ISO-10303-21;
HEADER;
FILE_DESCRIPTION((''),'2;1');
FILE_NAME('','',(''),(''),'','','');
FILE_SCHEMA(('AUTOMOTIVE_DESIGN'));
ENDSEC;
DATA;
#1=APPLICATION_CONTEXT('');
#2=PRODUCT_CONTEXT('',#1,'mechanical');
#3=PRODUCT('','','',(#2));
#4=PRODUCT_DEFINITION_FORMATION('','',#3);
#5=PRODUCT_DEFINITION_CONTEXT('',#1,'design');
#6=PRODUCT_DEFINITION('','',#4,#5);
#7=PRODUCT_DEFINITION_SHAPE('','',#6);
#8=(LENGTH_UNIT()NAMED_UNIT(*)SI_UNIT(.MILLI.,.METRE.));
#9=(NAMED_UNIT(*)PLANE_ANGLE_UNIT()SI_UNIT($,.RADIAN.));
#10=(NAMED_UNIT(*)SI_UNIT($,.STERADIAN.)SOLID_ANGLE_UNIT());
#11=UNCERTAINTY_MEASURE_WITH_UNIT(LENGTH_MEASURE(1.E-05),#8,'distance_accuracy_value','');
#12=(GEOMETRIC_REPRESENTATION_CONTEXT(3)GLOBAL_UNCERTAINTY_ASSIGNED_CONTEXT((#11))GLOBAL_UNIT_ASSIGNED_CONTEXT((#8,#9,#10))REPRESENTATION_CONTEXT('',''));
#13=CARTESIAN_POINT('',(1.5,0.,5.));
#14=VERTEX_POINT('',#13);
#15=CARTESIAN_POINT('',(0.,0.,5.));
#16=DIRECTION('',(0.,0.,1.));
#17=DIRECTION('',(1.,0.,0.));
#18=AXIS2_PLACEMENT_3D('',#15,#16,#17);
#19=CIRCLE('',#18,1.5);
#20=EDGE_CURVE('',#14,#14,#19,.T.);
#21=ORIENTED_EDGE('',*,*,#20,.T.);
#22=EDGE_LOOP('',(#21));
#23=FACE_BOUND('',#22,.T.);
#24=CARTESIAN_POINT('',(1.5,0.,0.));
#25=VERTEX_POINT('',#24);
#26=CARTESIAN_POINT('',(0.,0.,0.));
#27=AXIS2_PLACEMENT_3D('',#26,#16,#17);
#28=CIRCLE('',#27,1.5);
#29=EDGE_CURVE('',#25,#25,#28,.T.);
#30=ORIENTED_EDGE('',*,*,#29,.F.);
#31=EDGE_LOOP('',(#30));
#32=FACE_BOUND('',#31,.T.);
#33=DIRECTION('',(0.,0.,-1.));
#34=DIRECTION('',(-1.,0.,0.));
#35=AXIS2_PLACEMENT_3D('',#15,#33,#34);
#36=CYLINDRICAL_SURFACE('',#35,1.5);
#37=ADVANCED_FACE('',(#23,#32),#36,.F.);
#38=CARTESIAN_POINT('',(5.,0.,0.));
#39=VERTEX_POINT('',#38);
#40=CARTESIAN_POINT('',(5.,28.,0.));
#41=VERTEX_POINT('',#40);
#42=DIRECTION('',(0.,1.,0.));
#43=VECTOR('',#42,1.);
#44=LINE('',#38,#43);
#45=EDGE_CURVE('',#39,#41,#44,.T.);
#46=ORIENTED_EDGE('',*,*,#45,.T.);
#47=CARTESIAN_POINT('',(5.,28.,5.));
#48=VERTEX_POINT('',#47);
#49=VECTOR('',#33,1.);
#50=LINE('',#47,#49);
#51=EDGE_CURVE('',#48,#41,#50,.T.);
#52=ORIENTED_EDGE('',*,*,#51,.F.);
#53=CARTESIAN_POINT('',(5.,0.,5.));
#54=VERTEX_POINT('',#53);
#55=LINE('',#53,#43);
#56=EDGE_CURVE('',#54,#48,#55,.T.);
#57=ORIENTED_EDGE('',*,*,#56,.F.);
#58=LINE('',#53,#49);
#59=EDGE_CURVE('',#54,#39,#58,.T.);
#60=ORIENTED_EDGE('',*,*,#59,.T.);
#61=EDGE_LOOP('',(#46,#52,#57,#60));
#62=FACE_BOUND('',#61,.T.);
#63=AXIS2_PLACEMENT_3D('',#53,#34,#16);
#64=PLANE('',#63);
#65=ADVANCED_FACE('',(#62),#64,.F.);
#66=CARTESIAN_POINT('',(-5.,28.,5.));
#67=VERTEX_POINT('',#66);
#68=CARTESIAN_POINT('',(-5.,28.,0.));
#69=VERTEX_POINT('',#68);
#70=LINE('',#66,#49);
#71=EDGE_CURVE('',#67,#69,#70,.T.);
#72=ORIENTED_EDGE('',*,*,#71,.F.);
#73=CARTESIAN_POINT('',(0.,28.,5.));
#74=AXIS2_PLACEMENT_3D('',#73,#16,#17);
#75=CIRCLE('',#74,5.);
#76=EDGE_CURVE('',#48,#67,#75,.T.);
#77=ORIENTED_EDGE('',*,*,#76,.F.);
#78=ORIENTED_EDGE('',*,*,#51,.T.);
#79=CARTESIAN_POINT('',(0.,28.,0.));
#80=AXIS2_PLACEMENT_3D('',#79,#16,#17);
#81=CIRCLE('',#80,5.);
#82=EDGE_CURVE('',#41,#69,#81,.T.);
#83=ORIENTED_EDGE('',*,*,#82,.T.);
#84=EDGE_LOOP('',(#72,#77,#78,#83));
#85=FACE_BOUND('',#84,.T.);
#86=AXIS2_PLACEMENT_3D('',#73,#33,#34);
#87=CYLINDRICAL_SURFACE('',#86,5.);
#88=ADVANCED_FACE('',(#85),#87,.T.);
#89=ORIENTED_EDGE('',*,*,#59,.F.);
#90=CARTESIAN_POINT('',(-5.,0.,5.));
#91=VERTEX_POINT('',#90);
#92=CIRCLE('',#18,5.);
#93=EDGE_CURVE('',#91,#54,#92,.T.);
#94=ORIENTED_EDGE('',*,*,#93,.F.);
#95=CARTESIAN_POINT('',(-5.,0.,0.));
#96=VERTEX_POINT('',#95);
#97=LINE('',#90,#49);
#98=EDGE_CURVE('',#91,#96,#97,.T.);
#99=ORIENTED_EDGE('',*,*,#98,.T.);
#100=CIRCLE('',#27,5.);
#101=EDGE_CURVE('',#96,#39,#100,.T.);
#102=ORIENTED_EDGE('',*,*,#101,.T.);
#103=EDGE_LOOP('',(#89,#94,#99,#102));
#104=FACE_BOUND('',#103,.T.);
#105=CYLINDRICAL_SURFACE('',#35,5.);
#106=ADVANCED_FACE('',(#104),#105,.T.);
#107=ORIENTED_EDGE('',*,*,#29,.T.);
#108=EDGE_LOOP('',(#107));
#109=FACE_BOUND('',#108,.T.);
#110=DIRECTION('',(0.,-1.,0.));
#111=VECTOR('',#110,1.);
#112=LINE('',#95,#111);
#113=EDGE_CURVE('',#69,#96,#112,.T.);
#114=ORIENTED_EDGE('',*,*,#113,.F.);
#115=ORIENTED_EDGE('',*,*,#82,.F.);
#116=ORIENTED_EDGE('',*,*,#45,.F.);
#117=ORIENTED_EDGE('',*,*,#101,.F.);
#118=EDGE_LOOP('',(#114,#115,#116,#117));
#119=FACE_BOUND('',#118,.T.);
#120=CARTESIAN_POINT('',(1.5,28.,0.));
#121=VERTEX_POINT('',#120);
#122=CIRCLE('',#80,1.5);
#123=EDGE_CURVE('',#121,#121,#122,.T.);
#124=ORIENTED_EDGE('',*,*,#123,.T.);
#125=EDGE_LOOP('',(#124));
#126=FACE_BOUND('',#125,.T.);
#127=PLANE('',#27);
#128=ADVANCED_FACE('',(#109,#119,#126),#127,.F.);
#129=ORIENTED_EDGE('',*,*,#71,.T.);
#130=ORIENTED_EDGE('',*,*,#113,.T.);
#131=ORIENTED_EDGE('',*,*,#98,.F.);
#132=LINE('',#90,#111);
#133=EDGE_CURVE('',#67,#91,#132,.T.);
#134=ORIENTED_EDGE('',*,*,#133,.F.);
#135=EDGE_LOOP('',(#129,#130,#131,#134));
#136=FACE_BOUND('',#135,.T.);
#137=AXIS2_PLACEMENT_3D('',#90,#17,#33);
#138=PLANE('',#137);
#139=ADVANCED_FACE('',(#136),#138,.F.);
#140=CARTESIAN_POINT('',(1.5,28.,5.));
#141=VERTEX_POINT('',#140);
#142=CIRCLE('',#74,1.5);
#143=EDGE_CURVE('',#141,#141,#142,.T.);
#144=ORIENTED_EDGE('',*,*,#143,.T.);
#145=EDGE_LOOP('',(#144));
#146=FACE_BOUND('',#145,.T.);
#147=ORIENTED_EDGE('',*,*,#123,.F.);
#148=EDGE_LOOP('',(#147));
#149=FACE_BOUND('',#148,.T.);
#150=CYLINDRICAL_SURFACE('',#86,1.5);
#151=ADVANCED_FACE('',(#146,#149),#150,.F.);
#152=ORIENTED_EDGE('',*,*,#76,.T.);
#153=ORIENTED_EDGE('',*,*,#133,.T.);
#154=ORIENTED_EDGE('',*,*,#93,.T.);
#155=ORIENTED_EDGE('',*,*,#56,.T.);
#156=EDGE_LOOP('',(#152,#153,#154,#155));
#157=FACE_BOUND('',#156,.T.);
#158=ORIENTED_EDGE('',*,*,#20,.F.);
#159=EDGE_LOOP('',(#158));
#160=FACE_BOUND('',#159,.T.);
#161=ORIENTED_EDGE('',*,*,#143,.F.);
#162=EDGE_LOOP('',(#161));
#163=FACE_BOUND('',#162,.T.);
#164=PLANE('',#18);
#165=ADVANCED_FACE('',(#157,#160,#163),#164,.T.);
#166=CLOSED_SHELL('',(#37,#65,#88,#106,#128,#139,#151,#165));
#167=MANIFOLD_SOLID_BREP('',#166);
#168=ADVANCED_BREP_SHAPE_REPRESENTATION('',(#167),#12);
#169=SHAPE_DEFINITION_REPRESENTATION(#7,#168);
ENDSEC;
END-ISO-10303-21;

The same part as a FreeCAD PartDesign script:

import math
import FreeCAD as App
import Part
import Sketcher

doc = App.newDocument("Part")
params = doc.addObject("Spreadsheet::Sheet", "Params")
for row, (alias, value) in enumerate([
    ("sketch1_diameter", "3 mm"),
    ("sketch1_radius", "5 mm"),
    ("sketch1_height", "28 mm"),
    ("pad1_length", "5 mm"),
], start=1):
    params.set(f"A{row}", alias)
    params.set(f"B{row}", "=" + value)
    params.setAlias(f"B{row}", alias)

body = doc.addObject("PartDesign::Body", "Body")

sketch1 = doc.addObject("Sketcher::SketchObject", "Sketch")
body.addObject(sketch1)
sketch1.AttachmentSupport = (doc.XY_Plane, [""])
sketch1.MapMode = "FlatFace"
sketch1.addGeometry([
    Part.LineSegment(App.Vector(-5, 28, 0), App.Vector(-5, 0, 0)),
    Part.ArcOfCircle(Part.Circle(App.Vector(0, 0, 0), App.Vector(0, 0, 1), 5), math.radians(180), math.radians(360)),
    Part.LineSegment(App.Vector(5, 0, 0), App.Vector(5, 28, 0)),
    Part.ArcOfCircle(Part.Circle(App.Vector(0, 28, 0), App.Vector(0, 0, 1), 5), math.radians(0), math.radians(180)),
    Part.Circle(App.Vector(0, 0, 0), App.Vector(0, 0, 1), 1.5),
    Part.Circle(App.Vector(0, 28, 0), App.Vector(0, 0, 1), 1.5),
], False)
sketch1.addConstraint([
    Sketcher.Constraint("Tangent", 0, 2, 1, 1),
    Sketcher.Constraint("Tangent", 1, 2, 2, 1),
    Sketcher.Constraint("Tangent", 2, 2, 3, 1),
    Sketcher.Constraint("Tangent", 3, 2, 0, 1),
    Sketcher.Constraint("Vertical", 0),
    Sketcher.Constraint("Vertical", 2),
    Sketcher.Constraint("Coincident", 1, 3, -1, 1),
    Sketcher.Constraint("Coincident", 4, 3, -1, 1),
    Sketcher.Constraint("Coincident", 5, 3, 3, 3),
    Sketcher.Constraint("Equal", 4, 5),
    Sketcher.Constraint("Diameter", 4, 3.0),
    Sketcher.Constraint("Radius", 1, 5.0),
    Sketcher.Constraint("DistanceY", 0, 2, 0, 1, 28.0),
])
sketch1.setExpression("Constraints[10]", "Params.sketch1_diameter")
sketch1.setExpression("Constraints[11]", "Params.sketch1_radius")
sketch1.setExpression("Constraints[12]", "Params.sketch1_height")
pad1 = doc.addObject("PartDesign::Pad", "Pad")
body.addObject(pad1)
pad1.Profile = sketch1
pad1.setExpression("Length", "Params.pad1_length")

doc.recompute()
